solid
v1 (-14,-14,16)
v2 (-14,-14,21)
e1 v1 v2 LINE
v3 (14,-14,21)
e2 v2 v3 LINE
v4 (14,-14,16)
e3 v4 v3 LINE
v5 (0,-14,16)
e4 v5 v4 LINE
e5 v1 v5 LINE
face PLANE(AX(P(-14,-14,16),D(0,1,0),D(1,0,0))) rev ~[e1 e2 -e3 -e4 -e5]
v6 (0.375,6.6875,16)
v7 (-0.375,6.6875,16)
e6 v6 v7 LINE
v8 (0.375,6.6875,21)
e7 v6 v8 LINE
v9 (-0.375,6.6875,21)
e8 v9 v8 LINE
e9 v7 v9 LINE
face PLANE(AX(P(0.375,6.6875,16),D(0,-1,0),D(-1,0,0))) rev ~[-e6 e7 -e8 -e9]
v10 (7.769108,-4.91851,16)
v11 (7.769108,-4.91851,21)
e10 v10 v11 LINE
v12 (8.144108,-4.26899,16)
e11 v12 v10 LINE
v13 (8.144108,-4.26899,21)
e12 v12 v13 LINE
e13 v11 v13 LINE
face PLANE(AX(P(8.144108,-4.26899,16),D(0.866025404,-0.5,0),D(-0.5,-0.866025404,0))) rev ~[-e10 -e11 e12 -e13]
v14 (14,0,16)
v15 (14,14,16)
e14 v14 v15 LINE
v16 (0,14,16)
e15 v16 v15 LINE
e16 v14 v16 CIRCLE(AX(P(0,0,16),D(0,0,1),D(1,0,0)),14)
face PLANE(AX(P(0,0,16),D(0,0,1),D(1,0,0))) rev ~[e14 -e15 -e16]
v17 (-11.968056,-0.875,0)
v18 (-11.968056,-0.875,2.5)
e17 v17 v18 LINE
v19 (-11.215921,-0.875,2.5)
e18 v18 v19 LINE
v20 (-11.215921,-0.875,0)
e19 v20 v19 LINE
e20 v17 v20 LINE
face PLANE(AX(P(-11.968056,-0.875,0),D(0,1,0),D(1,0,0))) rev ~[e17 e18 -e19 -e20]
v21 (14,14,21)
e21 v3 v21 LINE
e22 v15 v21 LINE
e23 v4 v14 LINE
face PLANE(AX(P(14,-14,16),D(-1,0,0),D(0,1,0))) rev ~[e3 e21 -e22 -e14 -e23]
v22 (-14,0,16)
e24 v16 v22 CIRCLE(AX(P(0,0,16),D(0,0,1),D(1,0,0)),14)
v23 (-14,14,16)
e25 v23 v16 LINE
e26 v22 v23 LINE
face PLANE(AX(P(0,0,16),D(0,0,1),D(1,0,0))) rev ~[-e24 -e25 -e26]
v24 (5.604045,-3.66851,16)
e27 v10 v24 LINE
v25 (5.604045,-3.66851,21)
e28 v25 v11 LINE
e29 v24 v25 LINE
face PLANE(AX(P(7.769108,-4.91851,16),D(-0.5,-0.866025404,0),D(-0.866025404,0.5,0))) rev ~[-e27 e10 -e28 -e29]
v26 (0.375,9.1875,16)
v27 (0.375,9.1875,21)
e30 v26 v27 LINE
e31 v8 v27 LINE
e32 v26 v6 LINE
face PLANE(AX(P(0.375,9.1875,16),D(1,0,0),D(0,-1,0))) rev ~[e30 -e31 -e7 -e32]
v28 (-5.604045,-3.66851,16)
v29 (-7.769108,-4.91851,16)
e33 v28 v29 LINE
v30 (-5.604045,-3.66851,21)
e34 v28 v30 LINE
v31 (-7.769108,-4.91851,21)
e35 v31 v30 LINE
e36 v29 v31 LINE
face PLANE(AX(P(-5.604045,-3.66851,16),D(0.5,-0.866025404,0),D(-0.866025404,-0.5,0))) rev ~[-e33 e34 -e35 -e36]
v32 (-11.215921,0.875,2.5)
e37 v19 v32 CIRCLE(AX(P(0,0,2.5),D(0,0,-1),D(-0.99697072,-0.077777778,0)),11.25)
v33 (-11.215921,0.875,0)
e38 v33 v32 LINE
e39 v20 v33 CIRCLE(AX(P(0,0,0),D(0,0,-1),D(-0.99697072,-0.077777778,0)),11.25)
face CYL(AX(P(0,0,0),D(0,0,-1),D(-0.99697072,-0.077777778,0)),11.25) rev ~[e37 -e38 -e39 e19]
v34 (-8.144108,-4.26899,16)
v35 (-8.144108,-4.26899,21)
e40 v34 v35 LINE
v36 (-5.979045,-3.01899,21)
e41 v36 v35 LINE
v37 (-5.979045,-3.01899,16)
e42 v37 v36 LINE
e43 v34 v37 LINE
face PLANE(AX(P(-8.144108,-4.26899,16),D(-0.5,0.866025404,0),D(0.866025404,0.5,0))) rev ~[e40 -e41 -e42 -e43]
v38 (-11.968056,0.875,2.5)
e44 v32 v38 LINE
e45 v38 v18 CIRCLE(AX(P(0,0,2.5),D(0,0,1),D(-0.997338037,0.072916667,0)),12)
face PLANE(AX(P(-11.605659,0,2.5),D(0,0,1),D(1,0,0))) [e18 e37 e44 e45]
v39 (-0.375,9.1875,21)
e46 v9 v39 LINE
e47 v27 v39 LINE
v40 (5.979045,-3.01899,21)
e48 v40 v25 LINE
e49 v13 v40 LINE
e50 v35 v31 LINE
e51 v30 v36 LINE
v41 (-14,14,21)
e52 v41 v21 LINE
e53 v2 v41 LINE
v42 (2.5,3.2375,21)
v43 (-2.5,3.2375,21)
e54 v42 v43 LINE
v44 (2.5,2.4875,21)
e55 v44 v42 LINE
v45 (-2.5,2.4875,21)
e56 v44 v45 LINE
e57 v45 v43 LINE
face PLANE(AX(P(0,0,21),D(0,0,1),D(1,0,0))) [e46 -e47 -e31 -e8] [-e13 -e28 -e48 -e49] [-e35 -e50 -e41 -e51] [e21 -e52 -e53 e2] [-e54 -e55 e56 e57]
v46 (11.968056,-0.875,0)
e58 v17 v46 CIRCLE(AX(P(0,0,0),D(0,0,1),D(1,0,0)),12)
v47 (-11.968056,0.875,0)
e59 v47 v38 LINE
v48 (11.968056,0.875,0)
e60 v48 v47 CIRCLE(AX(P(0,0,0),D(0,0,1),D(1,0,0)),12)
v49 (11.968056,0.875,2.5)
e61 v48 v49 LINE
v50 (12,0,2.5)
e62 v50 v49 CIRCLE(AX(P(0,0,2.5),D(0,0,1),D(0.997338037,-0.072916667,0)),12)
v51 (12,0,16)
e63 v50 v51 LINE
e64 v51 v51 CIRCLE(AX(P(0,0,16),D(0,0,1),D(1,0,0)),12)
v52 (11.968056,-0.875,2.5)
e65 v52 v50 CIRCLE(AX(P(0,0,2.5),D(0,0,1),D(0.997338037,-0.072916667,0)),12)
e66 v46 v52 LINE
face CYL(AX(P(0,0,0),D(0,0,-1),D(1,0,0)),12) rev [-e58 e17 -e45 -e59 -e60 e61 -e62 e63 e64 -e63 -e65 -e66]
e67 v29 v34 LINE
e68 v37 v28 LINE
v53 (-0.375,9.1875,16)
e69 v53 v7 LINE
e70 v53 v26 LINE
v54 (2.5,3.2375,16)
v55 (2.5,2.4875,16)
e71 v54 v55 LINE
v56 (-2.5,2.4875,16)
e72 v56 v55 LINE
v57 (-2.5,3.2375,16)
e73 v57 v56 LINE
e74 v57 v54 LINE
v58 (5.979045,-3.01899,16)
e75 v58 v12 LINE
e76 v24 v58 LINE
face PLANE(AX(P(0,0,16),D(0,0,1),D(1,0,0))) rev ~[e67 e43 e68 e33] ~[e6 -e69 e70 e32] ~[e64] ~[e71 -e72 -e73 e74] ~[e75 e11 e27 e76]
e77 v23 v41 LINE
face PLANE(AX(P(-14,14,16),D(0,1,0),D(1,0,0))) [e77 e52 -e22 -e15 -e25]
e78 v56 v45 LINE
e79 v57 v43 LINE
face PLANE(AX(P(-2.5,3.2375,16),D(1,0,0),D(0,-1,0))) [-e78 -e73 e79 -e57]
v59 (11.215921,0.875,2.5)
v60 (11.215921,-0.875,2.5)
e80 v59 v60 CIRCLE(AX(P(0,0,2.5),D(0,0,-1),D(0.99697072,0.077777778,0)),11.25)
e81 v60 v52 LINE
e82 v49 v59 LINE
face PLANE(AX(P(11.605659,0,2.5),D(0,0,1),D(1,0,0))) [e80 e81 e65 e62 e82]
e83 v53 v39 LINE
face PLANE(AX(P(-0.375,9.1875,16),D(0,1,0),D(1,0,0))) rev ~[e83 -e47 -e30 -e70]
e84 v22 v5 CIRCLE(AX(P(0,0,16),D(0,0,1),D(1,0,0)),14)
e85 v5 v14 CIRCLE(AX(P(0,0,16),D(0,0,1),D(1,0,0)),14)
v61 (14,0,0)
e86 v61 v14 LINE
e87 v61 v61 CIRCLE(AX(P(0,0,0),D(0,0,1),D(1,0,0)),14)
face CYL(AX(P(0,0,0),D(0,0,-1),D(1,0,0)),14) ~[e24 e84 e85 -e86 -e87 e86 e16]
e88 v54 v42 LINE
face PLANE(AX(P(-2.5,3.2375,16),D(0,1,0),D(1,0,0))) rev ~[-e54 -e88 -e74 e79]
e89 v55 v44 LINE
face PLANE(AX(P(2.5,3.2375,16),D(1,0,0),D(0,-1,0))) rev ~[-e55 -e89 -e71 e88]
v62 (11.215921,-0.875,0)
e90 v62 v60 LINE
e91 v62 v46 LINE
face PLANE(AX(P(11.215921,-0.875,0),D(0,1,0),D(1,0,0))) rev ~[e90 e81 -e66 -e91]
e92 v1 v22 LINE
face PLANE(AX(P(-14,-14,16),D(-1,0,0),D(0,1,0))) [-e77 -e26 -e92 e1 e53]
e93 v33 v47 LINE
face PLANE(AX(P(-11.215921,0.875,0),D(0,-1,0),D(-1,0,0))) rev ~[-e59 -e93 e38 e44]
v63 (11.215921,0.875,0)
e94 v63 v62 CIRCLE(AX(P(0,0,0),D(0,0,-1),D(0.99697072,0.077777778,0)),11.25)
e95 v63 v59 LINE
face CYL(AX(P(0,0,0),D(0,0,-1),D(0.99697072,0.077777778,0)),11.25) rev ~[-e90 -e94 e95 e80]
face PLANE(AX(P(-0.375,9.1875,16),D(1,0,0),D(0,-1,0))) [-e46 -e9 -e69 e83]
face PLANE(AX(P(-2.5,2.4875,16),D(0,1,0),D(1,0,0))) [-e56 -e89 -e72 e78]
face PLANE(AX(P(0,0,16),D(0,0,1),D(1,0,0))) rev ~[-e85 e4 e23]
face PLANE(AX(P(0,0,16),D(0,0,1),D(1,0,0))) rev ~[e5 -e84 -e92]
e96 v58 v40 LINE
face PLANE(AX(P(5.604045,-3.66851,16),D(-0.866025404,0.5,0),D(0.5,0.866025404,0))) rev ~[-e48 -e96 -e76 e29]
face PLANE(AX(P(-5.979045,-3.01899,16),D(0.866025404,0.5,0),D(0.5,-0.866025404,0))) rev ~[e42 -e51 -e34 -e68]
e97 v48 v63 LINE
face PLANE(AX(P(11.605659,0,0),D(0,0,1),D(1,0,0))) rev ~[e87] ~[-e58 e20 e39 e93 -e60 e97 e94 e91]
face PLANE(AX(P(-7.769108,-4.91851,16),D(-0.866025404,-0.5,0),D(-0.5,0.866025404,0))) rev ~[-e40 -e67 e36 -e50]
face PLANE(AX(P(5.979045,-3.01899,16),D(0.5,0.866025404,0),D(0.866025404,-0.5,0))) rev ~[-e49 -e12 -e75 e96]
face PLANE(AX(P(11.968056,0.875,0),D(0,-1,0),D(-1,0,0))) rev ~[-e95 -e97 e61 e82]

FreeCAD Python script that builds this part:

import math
import FreeCAD as App
import Part
import Sketcher
Q = App.Units.Quantity

doc = App.newDocument("Part")
body = doc.addObject("PartDesign::Body", "Body")

# Sketch on XY plane
sketch1 = body.newObject("Sketcher::SketchObject", "Sketch")
sketch1.AttachmentSupport = (doc.getObject("XY_Plane"), [""])
sketch1.MapMode = "FlatFace"
sketch1.addGeometry([
    Part.Circle(App.Vector(0, 0, 0), App.Vector(0, 0, 1), 14),
    Part.Circle(App.Vector(0, 0, 0), App.Vector(0, 0, 1), 12),
], False)
sketch1.addConstraint([
    Sketcher.Constraint("Coincident", 0, 3, -1, 1),
    Sketcher.Constraint("Coincident", 1, 3, -1, 1),
    Sketcher.Constraint("Diameter", 0, Q("28 mm")),
    Sketcher.Constraint("Diameter", 1, Q("24 mm")),
])
pad1 = body.newObject("PartDesign::Pad", "Pad")
pad1.Profile = sketch1
pad1.Length = 16

# Sketch on XY plane
sketch2 = body.newObject("Sketcher::SketchObject", "Sketch001")
sketch2.AttachmentSupport = (doc.getObject("XY_Plane"), [""])
sketch2.MapMode = "FlatFace"
sketch2.addGeometry([
    Part.LineSegment(App.Vector(-11.2, 0.9, 0), App.Vector(-12, 0.9, 0)),  # 0
    Part.ArcOfCircle(Part.Circle(App.Vector(0, 0, 0), App.Vector(0, 0, 1), 12), math.radians(175.82), math.radians(184.18)),  # 1
    Part.LineSegment(App.Vector(-12, -0.9, 0), App.Vector(-11.2, -0.9, 0)),  # 2
    Part.ArcOfCircle(Part.Circle(App.Vector(0, 0, 0), App.Vector(0, 0, 1), 11.2), math.radians(175.54), math.radians(184.46)),  # 3
    Part.ArcOfCircle(Part.Circle(App.Vector(0, 0, 0), App.Vector(0, 0, 1), 12), math.radians(-4.18), math.radians(4.18)),  # 4
    Part.LineSegment(App.Vector(12, 0.9, 0), App.Vector(11.2, 0.9, 0)),  # 5
    Part.ArcOfCircle(Part.Circle(App.Vector(0, 0, 0), App.Vector(0, 0, 1), 11.2), math.radians(-4.46), math.radians(4.46)),  # 6
    Part.LineSegment(App.Vector(11.2, -0.9, 0), App.Vector(12, -0.9, 0)),  # 7
], False)
sketch2.addConstraint([
    Sketcher.Constraint("Coincident", 0, 2, 1, 1),
    Sketcher.Constraint("Coincident", 1, 2, 2, 1),
    Sketcher.Constraint("Coincident", 2, 2, 3, 2),
    Sketcher.Constraint("Coincident", 3, 1, 0, 1),
    Sketcher.Constraint("Coincident", 4, 2, 5, 1),
    Sketcher.Constraint("Coincident", 5, 2, 6, 2),
    Sketcher.Constraint("Coincident", 6, 1, 7, 1),
    Sketcher.Constraint("Coincident", 7, 2, 4, 1),
    Sketcher.Constraint("Horizontal", 0),
    Sketcher.Constraint("Horizontal", 2),
    Sketcher.Constraint("Horizontal", 5),
    Sketcher.Constraint("Horizontal", 7),
    Sketcher.Constraint("Coincident", 1, 3, -1, 1),
    Sketcher.Constraint("Coincident", 3, 3, -1, 1),
    Sketcher.Constraint("Coincident", 4, 3, -1, 1),
    Sketcher.Constraint("Coincident", 6, 3, -1, 1),
    Sketcher.Constraint("Equal", 1, 4),
    Sketcher.Constraint("Equal", 3, 6),
    Sketcher.Constraint("Horizontal", 3, 1, 4, 2),
    Sketcher.Constraint("Horizontal", 2, 2, 6, 1),
    Sketcher.Constraint("Vertical", 0, 2, 1, 2),
    Sketcher.Constraint("Radius", 1, Q("12 mm")),
    Sketcher.Constraint("Radius", 3, Q("11.25 mm")),
    Sketcher.Constraint("DistanceY", 1, 2, 0, 2, Q("1.75 mm")),
])
pad2 = body.newObject("PartDesign::Pad", "Pad001")
pad2.Profile = sketch2
pad2.Length = 2.5

# Sketch on XY plane
sketch3 = body.newObject("Sketcher::SketchObject", "Sketch002")
sketch3.AttachmentSupport = (doc.getObject("XY_Plane"), [""])
sketch3.MapMode = "FlatFace"
sketch3.AttachmentOffset = App.Placement(App.Vector(0, 0, 16), App.Rotation())
sketch3.addGeometry([
    Part.LineSegment(App.Vector(-14, 14, 0), App.Vector(-14, -14, 0)),
    Part.LineSegment(App.Vector(-14, -14, 0), App.Vector(14, -14, 0)),
    Part.LineSegment(App.Vector(14, -14, 0), App.Vector(14, 14, 0)),
    Part.LineSegment(App.Vector(14, 14, 0), App.Vector(-14, 14, 0)),
], False)
sketch3.addConstraint([
    Sketcher.Constraint("Coincident", 0, 2, 1, 1),
    Sketcher.Constraint("Coincident", 1, 2, 2, 1),
    Sketcher.Constraint("Coincident", 2, 2, 3, 1),
    Sketcher.Constraint("Coincident", 3, 2, 0, 1),
    Sketcher.Constraint("Vertical", 0),
    Sketcher.Constraint("Horizontal", 1),
    Sketcher.Constraint("Vertical", 2),
    Sketcher.Constraint("Horizontal", 3),
    Sketcher.Constraint("Symmetric", 0, 2, 2, 2, -1, 1),
    Sketcher.Constraint("Equal", 3, 0),
    Sketcher.Constraint("DistanceX", 1, 1, 1, 2, Q("28 mm")),
])
pad3 = body.newObject("PartDesign::Pad", "Pad002")
pad3.Profile = sketch3
pad3.Length = 5

# Sketch on XY plane
sketch4 = body.newObject("Sketcher::SketchObject", "Sketch003")
sketch4.AttachmentSupport = (doc.getObject("XY_Plane"), [""])
sketch4.MapMode = "FlatFace"
sketch4.AttachmentOffset = App.Placement(App.Vector(0, 0, 16), App.Rotation())
sketch4.addGeometry([
    Part.LineSegment(App.Vector(-2.5, 2.5, 0), App.Vector(-2.5, 3.2, 0)),  # 0
    Part.LineSegment(App.Vector(-2.5, 3.2, 0), App.Vector(2.5, 3.2, 0)),  # 1
    Part.LineSegment(App.Vector(2.5, 3.2, 0), App.Vector(2.5, 2.5, 0)),  # 2
    Part.LineSegment(App.Vector(2.5, 2.5, 0), App.Vector(-2.5, 2.5, 0)),  # 3
    Part.LineSegment(App.Vector(0.4, 9.2, 0), App.Vector(0.4, 6.7, 0)),  # 4
    Part.LineSegment(App.Vector(0.4, 6.7, 0), App.Vector(-0.4, 6.7, 0)),  # 5
    Part.LineSegment(App.Vector(-0.4, 6.7, 0), App.Vector(-0.4, 9.2, 0)),  # 6
    Part.LineSegment(App.Vector(-0.4, 9.2, 0), App.Vector(0.4, 9.2, 0)),  # 7
    Part.LineSegment(App.Vector(5.6, -3.7, 0), App.Vector(6, -3, 0)),  # 8
    Part.LineSegment(App.Vector(6, -3, 0), App.Vector(8.1, -4.3, 0)),  # 9
    Part.LineSegment(App.Vector(8.1, -4.3, 0), App.Vector(7.8, -4.9, 0)),  # 10
    Part.LineSegment(App.Vector(7.8, -4.9, 0), App.Vector(5.6, -3.7, 0)),  # 11
    Part.LineSegment(App.Vector(-6, -3, 0), App.Vector(-5.6, -3.7, 0)),  # 12
    Part.LineSegment(App.Vector(-5.6, -3.7, 0), App.Vector(-7.8, -4.9, 0)),  # 13
    Part.LineSegment(App.Vector(-7.8, -4.9, 0), App.Vector(-8.1, -4.3, 0)),  # 14
    Part.LineSegment(App.Vector(-8.1, -4.3, 0), App.Vector(-6, -3, 0)),  # 15
], False)
sketch4.addConstraint([
    Sketcher.Constraint("Coincident", 0, 2, 1, 1),
    Sketcher.Constraint("Coincident", 1, 2, 2, 1),
    Sketcher.Constraint("Coincident", 2, 2, 3, 1),
    Sketcher.Constraint("Coincident", 3, 2, 0, 1),
    Sketcher.Constraint("Coincident", 4, 2, 5, 1),
    Sketcher.Constraint("Coincident", 5, 2, 6, 1),
    Sketcher.Constraint("Coincident", 6, 2, 7, 1),
    Sketcher.Constraint("Coincident", 7, 2, 4, 1),
    Sketcher.Constraint("Coincident", 8, 2, 9, 1),
    Sketcher.Constraint("Coincident", 9, 2, 10, 1),
    Sketcher.Constraint("Coincident", 10, 2, 11, 1),
    Sketcher.Constraint("Coincident", 11, 2, 8, 1),
    Sketcher.Constraint("Coincident", 12, 2, 13, 1),
    Sketcher.Constraint("Coincident", 13, 2, 14, 1),
    Sketcher.Constraint("Coincident", 14, 2, 15, 1),
    Sketcher.Constraint("Coincident", 15, 2, 12, 1),
    Sketcher.Constraint("Vertical", 0),
    Sketcher.Constraint("Horizontal", 1),
    Sketcher.Constraint("Vertical", 2),
    Sketcher.Constraint("Horizontal", 3),
    Sketcher.Constraint("Vertical", 4),
    Sketcher.Constraint("Horizontal", 5),
    Sketcher.Constraint("Vertical", 6),
    Sketcher.Constraint("Horizontal", 7),
    Sketcher.Constraint("Symmetric", 11, 2, 12, 2, -2),
    Sketcher.Constraint("Symmetric", 10, 2, 13, 2, -2),
    Sketcher.Constraint("Symmetric", 9, 2, 14, 2, -2),
    Sketcher.Constraint("Symmetric", 8, 2, 15, 2, -2),
    Sketcher.Constraint("Perpendicular", 8, 9),
    Sketcher.Constraint("Perpendicular", 9, 10),
    Sketcher.Constraint("Perpendicular", 10, 11),
    Sketcher.Constraint("Equal", 7, 0),
    Sketcher.Constraint("DistanceX", 1, 1, 1, 2, Q("5 mm")),
    Sketcher.Constraint("Angle", 8, Q("60 deg")),
    Sketcher.Constraint("DistanceY", 4, 2, 4, 1, Q("2.5 mm")),
    Sketcher.Constraint("Distance", 9, Q("2.5 mm")),
    Sketcher.Constraint("DistanceX", 5, 2, 5, 1, Q("0.75 mm")),
    Sketcher.Constraint("DistanceX", 0, 2, -1, 1, Q("2.5 mm")),
    Sketcher.Constraint("DistanceY", 2, 2, 4, 2, Q("4.2 mm")),
    Sketcher.Constraint("Distance", 8, Q("0.75 mm")),
    Sketcher.Constraint("DistanceX", -1, 1, 4, 2, Q("0.375 mm")),
    Sketcher.Constraint("DistanceY", -1, 1, 0, 2, Q("3.2375 mm")),
    Sketcher.Constraint("DistanceY", 8, 2, -1, 1, Q("3.01899 mm")),
    Sketcher.Constraint("DistanceX", -1, 1, 9, 2, Q("8.144108 mm")),
])
pocket1 = body.newObject("PartDesign::Pocket", "Pocket")
pocket1.Profile = sketch4
pocket1.Type = "ThroughAll"
pocket1.Reversed = True

doc.recompute()
